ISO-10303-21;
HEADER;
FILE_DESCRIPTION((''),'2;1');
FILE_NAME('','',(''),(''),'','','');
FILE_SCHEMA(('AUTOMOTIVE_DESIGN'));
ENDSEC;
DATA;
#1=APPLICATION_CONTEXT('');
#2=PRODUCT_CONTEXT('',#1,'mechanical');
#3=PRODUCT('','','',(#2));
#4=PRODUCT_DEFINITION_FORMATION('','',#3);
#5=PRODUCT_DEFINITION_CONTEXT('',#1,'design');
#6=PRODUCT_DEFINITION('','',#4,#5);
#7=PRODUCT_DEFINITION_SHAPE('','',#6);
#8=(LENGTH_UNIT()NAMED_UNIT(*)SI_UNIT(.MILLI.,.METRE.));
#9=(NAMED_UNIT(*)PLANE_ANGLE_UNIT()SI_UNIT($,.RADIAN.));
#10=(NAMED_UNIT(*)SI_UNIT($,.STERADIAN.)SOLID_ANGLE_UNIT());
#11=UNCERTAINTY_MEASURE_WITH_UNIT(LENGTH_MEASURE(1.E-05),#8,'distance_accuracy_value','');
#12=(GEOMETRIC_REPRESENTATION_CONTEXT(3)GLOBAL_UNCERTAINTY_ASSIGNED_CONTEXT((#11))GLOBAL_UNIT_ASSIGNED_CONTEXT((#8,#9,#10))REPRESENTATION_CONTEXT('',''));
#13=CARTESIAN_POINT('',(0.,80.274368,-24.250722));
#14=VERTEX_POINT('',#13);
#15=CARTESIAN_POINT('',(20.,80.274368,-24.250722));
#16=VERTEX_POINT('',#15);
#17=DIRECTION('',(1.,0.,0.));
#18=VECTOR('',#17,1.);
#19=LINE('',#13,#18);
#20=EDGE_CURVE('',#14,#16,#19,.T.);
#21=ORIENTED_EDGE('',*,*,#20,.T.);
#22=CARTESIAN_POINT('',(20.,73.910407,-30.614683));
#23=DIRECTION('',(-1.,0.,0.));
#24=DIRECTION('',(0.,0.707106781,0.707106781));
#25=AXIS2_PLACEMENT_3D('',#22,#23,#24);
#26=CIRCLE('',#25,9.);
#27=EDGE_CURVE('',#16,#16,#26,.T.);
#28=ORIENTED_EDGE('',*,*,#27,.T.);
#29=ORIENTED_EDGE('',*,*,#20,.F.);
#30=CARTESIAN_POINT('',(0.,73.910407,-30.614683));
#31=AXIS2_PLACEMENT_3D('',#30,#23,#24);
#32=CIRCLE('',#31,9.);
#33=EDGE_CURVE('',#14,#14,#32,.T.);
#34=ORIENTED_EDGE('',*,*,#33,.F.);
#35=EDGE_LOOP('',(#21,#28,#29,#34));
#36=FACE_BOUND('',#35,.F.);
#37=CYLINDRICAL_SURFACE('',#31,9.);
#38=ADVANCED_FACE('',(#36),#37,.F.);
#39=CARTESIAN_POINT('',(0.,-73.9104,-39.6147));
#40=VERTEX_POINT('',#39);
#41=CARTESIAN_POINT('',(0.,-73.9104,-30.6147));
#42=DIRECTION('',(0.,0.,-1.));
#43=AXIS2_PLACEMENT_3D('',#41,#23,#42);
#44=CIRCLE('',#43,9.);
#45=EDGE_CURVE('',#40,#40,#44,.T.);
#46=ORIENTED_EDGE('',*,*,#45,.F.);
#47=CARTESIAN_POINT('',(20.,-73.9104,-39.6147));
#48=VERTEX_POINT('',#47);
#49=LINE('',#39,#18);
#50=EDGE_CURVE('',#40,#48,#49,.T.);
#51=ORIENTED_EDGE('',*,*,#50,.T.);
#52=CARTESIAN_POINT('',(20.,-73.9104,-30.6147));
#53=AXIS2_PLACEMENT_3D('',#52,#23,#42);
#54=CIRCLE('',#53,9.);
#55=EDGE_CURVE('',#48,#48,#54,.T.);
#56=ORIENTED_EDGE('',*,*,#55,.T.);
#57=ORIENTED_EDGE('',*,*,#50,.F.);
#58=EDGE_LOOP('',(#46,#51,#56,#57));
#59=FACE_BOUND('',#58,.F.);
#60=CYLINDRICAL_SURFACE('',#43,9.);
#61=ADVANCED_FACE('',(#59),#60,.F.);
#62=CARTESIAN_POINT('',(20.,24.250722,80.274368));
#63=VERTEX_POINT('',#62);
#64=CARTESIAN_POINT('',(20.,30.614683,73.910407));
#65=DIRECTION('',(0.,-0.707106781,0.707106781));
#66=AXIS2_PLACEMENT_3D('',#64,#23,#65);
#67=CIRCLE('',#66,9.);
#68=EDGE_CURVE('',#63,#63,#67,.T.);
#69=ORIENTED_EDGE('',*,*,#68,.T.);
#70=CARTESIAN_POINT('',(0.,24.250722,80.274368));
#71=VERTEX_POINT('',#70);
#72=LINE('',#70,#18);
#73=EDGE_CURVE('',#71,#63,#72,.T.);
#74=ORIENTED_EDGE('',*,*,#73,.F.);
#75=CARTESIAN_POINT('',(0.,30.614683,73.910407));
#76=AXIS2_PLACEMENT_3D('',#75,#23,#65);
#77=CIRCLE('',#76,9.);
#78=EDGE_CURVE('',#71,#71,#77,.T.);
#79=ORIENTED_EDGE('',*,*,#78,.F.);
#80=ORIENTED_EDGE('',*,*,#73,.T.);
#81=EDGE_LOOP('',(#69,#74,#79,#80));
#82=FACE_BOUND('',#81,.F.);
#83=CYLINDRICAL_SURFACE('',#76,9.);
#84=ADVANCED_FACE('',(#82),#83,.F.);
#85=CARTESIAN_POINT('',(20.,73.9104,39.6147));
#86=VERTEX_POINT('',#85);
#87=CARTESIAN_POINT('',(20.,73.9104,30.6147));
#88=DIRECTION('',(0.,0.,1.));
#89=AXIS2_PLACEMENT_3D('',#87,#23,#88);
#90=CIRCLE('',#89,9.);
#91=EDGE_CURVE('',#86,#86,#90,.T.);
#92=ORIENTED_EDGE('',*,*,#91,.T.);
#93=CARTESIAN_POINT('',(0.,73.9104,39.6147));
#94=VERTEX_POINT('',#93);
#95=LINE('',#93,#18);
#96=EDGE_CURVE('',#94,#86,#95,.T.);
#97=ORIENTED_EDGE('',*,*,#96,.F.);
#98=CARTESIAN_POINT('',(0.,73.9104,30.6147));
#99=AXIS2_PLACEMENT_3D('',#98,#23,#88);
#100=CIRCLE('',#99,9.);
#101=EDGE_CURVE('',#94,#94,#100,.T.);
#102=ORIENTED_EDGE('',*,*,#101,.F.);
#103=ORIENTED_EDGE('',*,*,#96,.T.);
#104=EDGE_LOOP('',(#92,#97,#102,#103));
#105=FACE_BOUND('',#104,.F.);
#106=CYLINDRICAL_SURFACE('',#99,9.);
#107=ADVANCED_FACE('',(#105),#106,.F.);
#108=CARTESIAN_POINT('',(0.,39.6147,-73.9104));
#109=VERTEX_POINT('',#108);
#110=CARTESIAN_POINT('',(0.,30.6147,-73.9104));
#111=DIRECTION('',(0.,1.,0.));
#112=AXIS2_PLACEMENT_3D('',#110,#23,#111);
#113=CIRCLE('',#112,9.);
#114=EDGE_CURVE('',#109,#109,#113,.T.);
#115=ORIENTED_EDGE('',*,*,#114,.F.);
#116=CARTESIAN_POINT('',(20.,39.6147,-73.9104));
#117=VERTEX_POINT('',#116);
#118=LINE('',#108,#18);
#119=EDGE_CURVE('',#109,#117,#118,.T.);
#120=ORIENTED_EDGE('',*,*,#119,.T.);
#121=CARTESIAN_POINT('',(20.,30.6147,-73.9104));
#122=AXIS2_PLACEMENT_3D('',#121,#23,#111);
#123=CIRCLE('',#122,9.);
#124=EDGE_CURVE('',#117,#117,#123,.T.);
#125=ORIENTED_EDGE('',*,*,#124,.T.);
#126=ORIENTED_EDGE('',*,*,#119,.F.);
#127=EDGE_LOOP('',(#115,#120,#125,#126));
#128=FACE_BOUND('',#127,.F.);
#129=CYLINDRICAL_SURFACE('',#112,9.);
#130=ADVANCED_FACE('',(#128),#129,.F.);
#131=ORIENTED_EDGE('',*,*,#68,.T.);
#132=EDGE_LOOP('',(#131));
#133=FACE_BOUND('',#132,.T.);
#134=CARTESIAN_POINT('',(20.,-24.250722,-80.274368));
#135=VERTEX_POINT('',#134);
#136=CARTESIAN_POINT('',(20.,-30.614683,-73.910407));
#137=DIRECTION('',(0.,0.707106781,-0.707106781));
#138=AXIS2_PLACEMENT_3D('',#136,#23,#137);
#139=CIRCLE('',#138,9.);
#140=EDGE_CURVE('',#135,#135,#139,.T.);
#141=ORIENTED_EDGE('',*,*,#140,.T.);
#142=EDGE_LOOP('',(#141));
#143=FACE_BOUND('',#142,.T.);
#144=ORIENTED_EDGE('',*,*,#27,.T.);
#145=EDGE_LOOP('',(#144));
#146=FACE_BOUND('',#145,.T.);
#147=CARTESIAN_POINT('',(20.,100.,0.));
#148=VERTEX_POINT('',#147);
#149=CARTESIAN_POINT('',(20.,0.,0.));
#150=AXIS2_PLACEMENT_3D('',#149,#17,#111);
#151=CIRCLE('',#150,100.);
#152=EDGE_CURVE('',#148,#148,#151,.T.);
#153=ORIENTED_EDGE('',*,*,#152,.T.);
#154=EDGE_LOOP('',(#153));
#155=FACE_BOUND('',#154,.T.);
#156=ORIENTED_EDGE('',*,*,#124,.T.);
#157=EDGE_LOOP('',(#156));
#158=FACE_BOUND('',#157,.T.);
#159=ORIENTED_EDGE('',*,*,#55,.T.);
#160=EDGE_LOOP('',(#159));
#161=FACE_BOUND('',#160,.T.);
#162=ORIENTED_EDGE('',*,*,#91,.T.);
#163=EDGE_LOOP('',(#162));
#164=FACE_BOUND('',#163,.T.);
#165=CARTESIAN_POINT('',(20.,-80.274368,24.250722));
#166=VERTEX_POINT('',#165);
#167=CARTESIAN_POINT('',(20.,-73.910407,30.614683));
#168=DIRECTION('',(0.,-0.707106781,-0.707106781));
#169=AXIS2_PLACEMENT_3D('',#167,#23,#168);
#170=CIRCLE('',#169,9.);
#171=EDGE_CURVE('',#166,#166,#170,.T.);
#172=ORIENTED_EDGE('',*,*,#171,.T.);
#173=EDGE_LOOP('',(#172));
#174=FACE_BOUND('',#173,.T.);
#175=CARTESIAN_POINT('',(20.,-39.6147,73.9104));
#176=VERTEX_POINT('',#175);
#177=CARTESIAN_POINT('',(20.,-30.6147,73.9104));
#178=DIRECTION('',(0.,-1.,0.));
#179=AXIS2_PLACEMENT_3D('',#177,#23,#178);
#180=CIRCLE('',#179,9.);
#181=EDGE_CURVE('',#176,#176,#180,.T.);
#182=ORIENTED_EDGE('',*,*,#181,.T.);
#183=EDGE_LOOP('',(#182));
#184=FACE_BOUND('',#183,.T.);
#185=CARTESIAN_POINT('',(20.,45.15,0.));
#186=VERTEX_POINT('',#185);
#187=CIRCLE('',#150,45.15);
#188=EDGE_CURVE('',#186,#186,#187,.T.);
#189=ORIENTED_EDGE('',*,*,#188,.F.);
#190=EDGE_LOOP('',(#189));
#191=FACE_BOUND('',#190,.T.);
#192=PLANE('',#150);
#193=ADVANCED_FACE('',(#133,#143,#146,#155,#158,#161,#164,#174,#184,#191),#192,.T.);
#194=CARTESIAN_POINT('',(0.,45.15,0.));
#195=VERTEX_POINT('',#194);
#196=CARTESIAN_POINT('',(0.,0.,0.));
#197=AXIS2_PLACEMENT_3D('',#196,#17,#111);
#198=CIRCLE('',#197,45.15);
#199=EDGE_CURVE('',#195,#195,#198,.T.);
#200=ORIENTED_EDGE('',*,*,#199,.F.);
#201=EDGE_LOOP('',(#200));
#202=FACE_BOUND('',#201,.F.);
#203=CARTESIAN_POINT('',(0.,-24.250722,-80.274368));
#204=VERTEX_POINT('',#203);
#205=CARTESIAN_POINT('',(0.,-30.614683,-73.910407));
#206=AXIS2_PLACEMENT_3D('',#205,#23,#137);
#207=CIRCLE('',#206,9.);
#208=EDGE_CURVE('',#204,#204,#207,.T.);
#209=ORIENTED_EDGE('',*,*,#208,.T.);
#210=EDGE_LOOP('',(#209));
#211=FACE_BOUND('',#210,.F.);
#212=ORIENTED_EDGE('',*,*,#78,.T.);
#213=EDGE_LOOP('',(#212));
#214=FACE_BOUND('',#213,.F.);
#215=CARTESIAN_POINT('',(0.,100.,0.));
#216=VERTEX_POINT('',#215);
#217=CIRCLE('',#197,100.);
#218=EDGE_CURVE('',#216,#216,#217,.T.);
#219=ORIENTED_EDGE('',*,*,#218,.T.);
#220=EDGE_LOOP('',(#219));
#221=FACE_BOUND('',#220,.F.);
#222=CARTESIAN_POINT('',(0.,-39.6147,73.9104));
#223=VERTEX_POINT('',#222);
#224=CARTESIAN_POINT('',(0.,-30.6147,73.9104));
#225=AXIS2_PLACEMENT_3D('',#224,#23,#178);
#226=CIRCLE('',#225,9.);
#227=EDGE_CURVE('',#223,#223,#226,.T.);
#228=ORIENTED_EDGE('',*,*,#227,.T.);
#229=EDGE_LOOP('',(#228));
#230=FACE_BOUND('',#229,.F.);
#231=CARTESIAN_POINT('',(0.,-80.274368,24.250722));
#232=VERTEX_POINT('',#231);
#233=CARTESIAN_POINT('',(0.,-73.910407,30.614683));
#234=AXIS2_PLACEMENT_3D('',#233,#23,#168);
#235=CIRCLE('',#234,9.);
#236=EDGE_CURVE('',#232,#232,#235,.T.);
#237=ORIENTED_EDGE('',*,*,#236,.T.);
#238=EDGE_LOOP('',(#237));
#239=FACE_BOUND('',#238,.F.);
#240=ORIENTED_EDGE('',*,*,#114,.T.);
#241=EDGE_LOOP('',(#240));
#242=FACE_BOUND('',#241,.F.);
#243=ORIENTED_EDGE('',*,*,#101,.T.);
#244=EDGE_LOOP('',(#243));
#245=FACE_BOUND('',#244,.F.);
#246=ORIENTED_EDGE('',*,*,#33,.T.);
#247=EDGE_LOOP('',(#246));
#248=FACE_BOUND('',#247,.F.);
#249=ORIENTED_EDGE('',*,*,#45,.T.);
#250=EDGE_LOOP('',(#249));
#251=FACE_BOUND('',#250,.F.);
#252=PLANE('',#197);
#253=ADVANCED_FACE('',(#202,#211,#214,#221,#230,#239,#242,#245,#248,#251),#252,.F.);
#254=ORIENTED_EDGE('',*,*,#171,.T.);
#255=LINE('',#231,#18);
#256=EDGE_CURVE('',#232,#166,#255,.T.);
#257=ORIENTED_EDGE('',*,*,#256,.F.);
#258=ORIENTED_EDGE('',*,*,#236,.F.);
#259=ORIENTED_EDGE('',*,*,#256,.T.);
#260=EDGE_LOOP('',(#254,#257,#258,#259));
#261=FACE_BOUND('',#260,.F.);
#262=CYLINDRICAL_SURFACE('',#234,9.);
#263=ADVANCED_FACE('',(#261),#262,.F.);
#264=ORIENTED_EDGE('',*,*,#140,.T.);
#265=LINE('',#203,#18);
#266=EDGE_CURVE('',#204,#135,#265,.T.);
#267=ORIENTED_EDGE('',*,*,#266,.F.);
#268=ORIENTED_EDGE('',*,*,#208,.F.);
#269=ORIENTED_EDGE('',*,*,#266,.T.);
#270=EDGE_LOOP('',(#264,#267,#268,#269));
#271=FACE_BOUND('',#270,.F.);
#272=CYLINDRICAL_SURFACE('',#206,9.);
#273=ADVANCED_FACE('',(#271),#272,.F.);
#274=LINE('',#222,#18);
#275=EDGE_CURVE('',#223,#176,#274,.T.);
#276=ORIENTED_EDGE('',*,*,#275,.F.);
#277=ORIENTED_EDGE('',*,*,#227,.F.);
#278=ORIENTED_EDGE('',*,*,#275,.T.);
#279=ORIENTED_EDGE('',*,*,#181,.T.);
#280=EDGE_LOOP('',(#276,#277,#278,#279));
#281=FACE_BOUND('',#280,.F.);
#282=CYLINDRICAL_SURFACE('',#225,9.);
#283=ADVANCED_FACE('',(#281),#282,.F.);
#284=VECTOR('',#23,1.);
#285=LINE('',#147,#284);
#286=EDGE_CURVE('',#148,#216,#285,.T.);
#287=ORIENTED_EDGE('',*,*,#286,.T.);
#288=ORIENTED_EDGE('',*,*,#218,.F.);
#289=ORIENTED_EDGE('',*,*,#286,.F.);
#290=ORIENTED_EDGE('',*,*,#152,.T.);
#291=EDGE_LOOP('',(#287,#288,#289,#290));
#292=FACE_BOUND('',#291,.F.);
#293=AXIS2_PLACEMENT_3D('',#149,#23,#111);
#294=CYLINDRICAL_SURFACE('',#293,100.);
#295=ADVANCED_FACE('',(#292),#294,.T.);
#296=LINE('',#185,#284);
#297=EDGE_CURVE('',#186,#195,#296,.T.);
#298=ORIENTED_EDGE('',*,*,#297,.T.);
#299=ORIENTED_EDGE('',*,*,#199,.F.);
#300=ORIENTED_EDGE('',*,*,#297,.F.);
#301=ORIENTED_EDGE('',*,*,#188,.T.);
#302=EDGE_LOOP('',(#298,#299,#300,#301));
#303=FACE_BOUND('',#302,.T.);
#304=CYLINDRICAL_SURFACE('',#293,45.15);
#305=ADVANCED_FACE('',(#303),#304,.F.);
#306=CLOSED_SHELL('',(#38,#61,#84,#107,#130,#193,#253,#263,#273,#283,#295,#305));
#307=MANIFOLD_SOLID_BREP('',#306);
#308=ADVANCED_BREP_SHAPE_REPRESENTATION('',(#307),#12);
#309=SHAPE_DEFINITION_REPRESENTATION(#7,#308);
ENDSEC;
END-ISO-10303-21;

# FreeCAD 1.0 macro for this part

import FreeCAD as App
import Part
import Sketcher
Q = App.Units.Quantity

doc = App.newDocument("Part")
body = doc.addObject("PartDesign::Body", "Body")

sketch1 = body.newObject("Sketcher::SketchObject", "Sketch")
sketch1.AttachmentSupport = (doc.getObject("XY_Plane"), [""])
sketch1.MapMode = "FlatFace"
sketch1.addGeometry(Part.LineSegment(App.Vector(20, 45, 0), App.Vector(20, 100, 0)), False)
sketch1.addGeometry(Part.LineSegment(App.Vector(20, 100, 0), App.Vector(0, 100, 0)), False)
sketch1.addGeometry(Part.LineSegment(App.Vector(0, 100, 0), App.Vector(0, 45, 0)), False)
sketch1.addGeometry(Part.LineSegment(App.Vector(0, 45, 0), App.Vector(20, 45, 0)), False)
sketch1.addConstraint(Sketcher.Constraint("Coincident", 0, 2, 1, 1))
sketch1.addConstraint(Sketcher.Constraint("Coincident", 1, 2, 2, 1))
sketch1.addConstraint(Sketcher.Constraint("Coincident", 2, 2, 3, 1))
sketch1.addConstraint(Sketcher.Constraint("Coincident", 3, 2, 0, 1))
sketch1.addConstraint(Sketcher.Constraint("Vertical", 0))
sketch1.addConstraint(Sketcher.Constraint("Horizontal", 1))
sketch1.addConstraint(Sketcher.Constraint("Vertical", 2))
sketch1.addConstraint(Sketcher.Constraint("Horizontal", 3))
sketch1.addConstraint(Sketcher.Constraint("PointOnObject", 1, 2, -2))
sketch1.addConstraint(Sketcher.Constraint("DistanceX", 1, 2, 1, 1, Q("20 mm")))
sketch1.addConstraint(Sketcher.Constraint("DistanceY", -1, 1, 0, 2, Q("100 mm")))
sketch1.addConstraint(Sketcher.Constraint("DistanceY", 0, 1, 0, 2, Q("54.85 mm")))
revolution = body.newObject("PartDesign::Revolution", "Revolution")
revolution.Profile = sketch1
revolution.ReferenceAxis = (sketch1, ["H_Axis"])
revolution.Angle = 360

sketch2 = body.newObject("Sketcher::SketchObject", "Sketch001")
sketch2.AttachmentSupport = (doc.getObject("YZ_Plane"), [""])
sketch2.MapMode = "FlatFace"
sketch2.addGeometry(Part.Circle(App.Vector(74, 31, 0), App.Vector(0, 0, 1), 9), False)
sketch2.addConstraint(Sketcher.Constraint("Diameter", 0, Q("18 mm")))
sketch2.addConstraint(Sketcher.Constraint("DistanceX", -1, 1, 0, 3, Q("73.9104 mm")))
sketch2.addConstraint(Sketcher.Constraint("DistanceY", -1, 1, 0, 3, Q("30.6147 mm")))
pocket1 = body.newObject("PartDesign::Pocket", "Pocket")
pocket1.Profile = sketch2
pocket1.Type = "ThroughAll"
pocket1.Reversed = True
doc.recompute()

polarpattern = body.newObject("PartDesign::PolarPattern", "PolarPattern")
polarpattern.Originals = [pocket1]
polarpattern.Axis = (doc.getObject("X_Axis"), [""])
polarpattern.Angle = 360
polarpattern.Occurrences = 8
body.Tip = polarpattern

doc.recompute()
